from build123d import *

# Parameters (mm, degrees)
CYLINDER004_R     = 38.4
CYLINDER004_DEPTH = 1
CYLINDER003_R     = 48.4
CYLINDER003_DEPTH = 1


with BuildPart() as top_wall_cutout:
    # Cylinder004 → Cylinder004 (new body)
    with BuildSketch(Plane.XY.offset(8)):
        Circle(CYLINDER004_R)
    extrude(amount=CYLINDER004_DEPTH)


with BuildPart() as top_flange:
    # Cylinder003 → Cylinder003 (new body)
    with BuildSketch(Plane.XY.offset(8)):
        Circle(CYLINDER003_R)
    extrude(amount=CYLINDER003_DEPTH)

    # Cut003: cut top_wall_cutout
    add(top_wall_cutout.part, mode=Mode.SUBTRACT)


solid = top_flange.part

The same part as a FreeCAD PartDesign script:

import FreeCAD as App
import Part
import Sketcher

V = App.Vector
Q = App.Units.Quantity

doc = App.newDocument("Part")
params = doc.addObject("Spreadsheet::Sheet", "Params")
for row, (alias, value) in enumerate([
    ("sketch1_diameter", "76.8 mm"),
    ("pad1_length", "1 mm"),
    ("sketch2_diameter", "96.8 mm"),
    ("pad2_length", "1 mm"),
], start=1):
    params.set(f"A{row}", alias)
    params.set(f"B{row}", "=" + value)
    params.setAlias(f"B{row}", alias)

body = doc.addObject("PartDesign::Body", "Body")

sketch1 = doc.addObject("Sketcher::SketchObject", "Sketch")
body.addObject(sketch1)
sketch1.AttachmentSupport = (doc.XY_Plane, [""])
sketch1.MapMode = "FlatFace"
sketch1.AttachmentOffset = App.Placement(V(0, 0, 8), App.Rotation())
sketch1.addGeometry(Part.Circle(V(0, 0, 0), V(0, 0, 1), 38), False)
sketch1.addConstraint(Sketcher.Constraint("Coincident", 0, 3, -1, 1))
sketch1.addConstraint(Sketcher.Constraint("Diameter", 0, Q("76.8 mm")))
sketch1.setExpression("Constraints[1]", "Params.sketch1_diameter")
pad1 = doc.addObject("PartDesign::Pad", "Pad")
body.addObject(pad1)
pad1.Profile = sketch1
pad1.setExpression("Length", "Params.pad1_length")
body2 = doc.addObject("PartDesign::Body", "Body001")

sketch2 = doc.addObject("Sketcher::SketchObject", "Sketch001")
body2.addObject(sketch2)
sketch2.AttachmentSupport = (doc.getObject("XY_Plane001"), [""])
sketch2.MapMode = "FlatFace"
sketch2.AttachmentOffset = App.Placement(V(0, 0, 8), App.Rotation())
sketch2.addGeometry(Part.Circle(V(0, 0, 0), V(0, 0, 1), 48), False)
sketch2.addConstraint(Sketcher.Constraint("Coincident", 0, 3, -1, 1))
sketch2.addConstraint(Sketcher.Constraint("Diameter", 0, Q("96.8 mm")))
sketch2.setExpression("Constraints[1]", "Params.sketch2_diameter")
pad2 = doc.addObject("PartDesign::Pad", "Pad001")
body2.addObject(pad2)
pad2.Profile = sketch2
pad2.setExpression("Length", "Params.pad2_length")
doc.recompute()

boolean = doc.addObject("PartDesign::Boolean", "Boolean")
body2.addObject(boolean)
boolean.Type = "Cut"
boolean.addObjects([body])

doc.recompute()
